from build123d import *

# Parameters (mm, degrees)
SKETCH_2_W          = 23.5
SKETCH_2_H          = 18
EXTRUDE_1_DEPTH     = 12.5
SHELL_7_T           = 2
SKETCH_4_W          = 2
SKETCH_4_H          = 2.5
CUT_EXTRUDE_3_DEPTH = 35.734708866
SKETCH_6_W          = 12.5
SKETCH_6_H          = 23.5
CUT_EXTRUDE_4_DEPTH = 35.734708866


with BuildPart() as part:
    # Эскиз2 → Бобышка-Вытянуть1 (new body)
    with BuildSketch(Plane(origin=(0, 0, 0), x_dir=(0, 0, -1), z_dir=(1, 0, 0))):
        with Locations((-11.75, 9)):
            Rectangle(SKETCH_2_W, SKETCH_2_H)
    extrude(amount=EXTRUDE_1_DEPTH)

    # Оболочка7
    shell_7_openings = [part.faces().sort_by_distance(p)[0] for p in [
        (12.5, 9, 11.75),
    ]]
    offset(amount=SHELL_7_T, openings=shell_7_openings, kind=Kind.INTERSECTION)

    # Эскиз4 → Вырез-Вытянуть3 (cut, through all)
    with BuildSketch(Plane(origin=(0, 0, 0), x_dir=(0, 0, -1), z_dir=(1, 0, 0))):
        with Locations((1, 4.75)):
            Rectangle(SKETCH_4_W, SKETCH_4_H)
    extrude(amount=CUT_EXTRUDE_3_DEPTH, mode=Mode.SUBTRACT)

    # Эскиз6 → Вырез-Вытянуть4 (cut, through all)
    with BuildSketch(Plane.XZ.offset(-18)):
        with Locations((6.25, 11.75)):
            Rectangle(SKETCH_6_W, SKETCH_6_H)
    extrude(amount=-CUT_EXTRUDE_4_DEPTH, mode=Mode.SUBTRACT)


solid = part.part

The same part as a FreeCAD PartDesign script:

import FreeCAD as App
import Part
import Sketcher


def faces_at(feature, points):
    """Names of the faces that lie closest to the given points."""
    faces = feature.Shape.Faces
    near = lambda p: min(range(len(faces)), key=lambda i: faces[i].distToShape(Part.Vertex(*p))[0])
    return sorted({f"Face{near(p) + 1}" for p in points})


def add_polygon(sketch, points):
    """Adds a closed chain of lines whose ends are joined by coincident constraints."""
    first, n = sketch.GeometryCount, len(points)
    for a, b in zip(points, points[1:] + points[:1]):
        sketch.addGeometry(Part.LineSegment(App.Vector(*a, 0), App.Vector(*b, 0)), False)
    for i in range(n):
        sketch.addConstraint(Sketcher.Constraint("Coincident", first + i, 2, first + (i + 1) % n, 1))

doc = App.newDocument("Part")
body = doc.addObject("PartDesign::Body", "Body")

# Sketch on YZ plane
sketch1 = body.newObject("Sketcher::SketchObject", "Sketch")
sketch1.AttachmentSupport = (doc.getObject("YZ_Plane"), [""])
sketch1.MapMode = "FlatFace"
add_polygon(sketch1, [(18, 24), (0, 24), (0, 0), (18, 0)])  # lines 0-3
sketch1.addConstraint([
    Sketcher.Constraint("Horizontal", 0),
    Sketcher.Constraint("Vertical", 1),
    Sketcher.Constraint("Horizontal", 2),
    Sketcher.Constraint("Vertical", 3),
    Sketcher.Constraint("Coincident", 1, 2, -1, 1),
    Sketcher.Constraint("DistanceX", 0, 2, 0, 1, 18.0),
    Sketcher.Constraint("DistanceY", 1, 2, 1, 1, 23.5),
])
pad1 = body.newObject("PartDesign::Pad", "Pad")
pad1.Profile = sketch1
pad1.Length = 12.5
doc.recompute()

thickness = body.newObject("PartDesign::Thickness", "Thickness")
thickness.Base = (pad1, faces_at(pad1, [(12.5, 9, 11.75)]))
thickness.Value = 2
thickness.Reversed = False
thickness.Join = "Intersection"

# Sketch on YZ plane
sketch2 = body.newObject("Sketcher::SketchObject", "Sketch001")
sketch2.AttachmentSupport = (doc.getObject("YZ_Plane"), [""])
sketch2.MapMode = "FlatFace"
add_polygon(sketch2, [(6, 0), (3.5, 0), (3.5, -2), (6, -2)])  # lines 0-3
sketch2.addConstraint([
    Sketcher.Constraint("Horizontal", 0),
    Sketcher.Constraint("Vertical", 1),
    Sketcher.Constraint("Horizontal", 2),
    Sketcher.Constraint("Vertical", 3),
    Sketcher.Constraint("PointOnObject", 0, 2, -1),
    Sketcher.Constraint("DistanceY", 1, 2, 1, 1, 2.0),
    Sketcher.Constraint("DistanceX", 0, 2, 0, 1, 2.5),
    Sketcher.Constraint("DistanceX", -1, 1, 2, 2, 6.0),
])
pocket1 = body.newObject("PartDesign::Pocket", "Pocket")
pocket1.Profile = sketch2
pocket1.Type = "ThroughAll"
pocket1.Reversed = True

# Sketch on XZ plane
sketch3 = body.newObject("Sketcher::SketchObject", "Sketch002")
sketch3.AttachmentSupport = (doc.getObject("XZ_Plane"), [""])
sketch3.MapMode = "FlatFace"
sketch3.AttachmentOffset = App.Placement(App.Vector(0, 0, -18), App.Rotation())
add_polygon(sketch3, [(0, 24), (0, 0), (12, 0), (12, 24)])  # lines 0-3
sketch3.addConstraint([
    Sketcher.Constraint("Vertical", 0),
    Sketcher.Constraint("Horizontal", 1),
    Sketcher.Constraint("Vertical", 2),
    Sketcher.Constraint("Horizontal", 3),
    Sketcher.Constraint("Coincident", 0, 2, -1, 1),
    Sketcher.Constraint("DistanceX", 1, 1, 1, 2, 12.5),
    Sketcher.Constraint("DistanceY", 0, 2, 0, 1, 23.5),
])
pocket2 = body.newObject("PartDesign::Pocket", "Pocket001")
pocket2.Profile = sketch3
pocket2.Type = "ThroughAll"

doc.recompute()
